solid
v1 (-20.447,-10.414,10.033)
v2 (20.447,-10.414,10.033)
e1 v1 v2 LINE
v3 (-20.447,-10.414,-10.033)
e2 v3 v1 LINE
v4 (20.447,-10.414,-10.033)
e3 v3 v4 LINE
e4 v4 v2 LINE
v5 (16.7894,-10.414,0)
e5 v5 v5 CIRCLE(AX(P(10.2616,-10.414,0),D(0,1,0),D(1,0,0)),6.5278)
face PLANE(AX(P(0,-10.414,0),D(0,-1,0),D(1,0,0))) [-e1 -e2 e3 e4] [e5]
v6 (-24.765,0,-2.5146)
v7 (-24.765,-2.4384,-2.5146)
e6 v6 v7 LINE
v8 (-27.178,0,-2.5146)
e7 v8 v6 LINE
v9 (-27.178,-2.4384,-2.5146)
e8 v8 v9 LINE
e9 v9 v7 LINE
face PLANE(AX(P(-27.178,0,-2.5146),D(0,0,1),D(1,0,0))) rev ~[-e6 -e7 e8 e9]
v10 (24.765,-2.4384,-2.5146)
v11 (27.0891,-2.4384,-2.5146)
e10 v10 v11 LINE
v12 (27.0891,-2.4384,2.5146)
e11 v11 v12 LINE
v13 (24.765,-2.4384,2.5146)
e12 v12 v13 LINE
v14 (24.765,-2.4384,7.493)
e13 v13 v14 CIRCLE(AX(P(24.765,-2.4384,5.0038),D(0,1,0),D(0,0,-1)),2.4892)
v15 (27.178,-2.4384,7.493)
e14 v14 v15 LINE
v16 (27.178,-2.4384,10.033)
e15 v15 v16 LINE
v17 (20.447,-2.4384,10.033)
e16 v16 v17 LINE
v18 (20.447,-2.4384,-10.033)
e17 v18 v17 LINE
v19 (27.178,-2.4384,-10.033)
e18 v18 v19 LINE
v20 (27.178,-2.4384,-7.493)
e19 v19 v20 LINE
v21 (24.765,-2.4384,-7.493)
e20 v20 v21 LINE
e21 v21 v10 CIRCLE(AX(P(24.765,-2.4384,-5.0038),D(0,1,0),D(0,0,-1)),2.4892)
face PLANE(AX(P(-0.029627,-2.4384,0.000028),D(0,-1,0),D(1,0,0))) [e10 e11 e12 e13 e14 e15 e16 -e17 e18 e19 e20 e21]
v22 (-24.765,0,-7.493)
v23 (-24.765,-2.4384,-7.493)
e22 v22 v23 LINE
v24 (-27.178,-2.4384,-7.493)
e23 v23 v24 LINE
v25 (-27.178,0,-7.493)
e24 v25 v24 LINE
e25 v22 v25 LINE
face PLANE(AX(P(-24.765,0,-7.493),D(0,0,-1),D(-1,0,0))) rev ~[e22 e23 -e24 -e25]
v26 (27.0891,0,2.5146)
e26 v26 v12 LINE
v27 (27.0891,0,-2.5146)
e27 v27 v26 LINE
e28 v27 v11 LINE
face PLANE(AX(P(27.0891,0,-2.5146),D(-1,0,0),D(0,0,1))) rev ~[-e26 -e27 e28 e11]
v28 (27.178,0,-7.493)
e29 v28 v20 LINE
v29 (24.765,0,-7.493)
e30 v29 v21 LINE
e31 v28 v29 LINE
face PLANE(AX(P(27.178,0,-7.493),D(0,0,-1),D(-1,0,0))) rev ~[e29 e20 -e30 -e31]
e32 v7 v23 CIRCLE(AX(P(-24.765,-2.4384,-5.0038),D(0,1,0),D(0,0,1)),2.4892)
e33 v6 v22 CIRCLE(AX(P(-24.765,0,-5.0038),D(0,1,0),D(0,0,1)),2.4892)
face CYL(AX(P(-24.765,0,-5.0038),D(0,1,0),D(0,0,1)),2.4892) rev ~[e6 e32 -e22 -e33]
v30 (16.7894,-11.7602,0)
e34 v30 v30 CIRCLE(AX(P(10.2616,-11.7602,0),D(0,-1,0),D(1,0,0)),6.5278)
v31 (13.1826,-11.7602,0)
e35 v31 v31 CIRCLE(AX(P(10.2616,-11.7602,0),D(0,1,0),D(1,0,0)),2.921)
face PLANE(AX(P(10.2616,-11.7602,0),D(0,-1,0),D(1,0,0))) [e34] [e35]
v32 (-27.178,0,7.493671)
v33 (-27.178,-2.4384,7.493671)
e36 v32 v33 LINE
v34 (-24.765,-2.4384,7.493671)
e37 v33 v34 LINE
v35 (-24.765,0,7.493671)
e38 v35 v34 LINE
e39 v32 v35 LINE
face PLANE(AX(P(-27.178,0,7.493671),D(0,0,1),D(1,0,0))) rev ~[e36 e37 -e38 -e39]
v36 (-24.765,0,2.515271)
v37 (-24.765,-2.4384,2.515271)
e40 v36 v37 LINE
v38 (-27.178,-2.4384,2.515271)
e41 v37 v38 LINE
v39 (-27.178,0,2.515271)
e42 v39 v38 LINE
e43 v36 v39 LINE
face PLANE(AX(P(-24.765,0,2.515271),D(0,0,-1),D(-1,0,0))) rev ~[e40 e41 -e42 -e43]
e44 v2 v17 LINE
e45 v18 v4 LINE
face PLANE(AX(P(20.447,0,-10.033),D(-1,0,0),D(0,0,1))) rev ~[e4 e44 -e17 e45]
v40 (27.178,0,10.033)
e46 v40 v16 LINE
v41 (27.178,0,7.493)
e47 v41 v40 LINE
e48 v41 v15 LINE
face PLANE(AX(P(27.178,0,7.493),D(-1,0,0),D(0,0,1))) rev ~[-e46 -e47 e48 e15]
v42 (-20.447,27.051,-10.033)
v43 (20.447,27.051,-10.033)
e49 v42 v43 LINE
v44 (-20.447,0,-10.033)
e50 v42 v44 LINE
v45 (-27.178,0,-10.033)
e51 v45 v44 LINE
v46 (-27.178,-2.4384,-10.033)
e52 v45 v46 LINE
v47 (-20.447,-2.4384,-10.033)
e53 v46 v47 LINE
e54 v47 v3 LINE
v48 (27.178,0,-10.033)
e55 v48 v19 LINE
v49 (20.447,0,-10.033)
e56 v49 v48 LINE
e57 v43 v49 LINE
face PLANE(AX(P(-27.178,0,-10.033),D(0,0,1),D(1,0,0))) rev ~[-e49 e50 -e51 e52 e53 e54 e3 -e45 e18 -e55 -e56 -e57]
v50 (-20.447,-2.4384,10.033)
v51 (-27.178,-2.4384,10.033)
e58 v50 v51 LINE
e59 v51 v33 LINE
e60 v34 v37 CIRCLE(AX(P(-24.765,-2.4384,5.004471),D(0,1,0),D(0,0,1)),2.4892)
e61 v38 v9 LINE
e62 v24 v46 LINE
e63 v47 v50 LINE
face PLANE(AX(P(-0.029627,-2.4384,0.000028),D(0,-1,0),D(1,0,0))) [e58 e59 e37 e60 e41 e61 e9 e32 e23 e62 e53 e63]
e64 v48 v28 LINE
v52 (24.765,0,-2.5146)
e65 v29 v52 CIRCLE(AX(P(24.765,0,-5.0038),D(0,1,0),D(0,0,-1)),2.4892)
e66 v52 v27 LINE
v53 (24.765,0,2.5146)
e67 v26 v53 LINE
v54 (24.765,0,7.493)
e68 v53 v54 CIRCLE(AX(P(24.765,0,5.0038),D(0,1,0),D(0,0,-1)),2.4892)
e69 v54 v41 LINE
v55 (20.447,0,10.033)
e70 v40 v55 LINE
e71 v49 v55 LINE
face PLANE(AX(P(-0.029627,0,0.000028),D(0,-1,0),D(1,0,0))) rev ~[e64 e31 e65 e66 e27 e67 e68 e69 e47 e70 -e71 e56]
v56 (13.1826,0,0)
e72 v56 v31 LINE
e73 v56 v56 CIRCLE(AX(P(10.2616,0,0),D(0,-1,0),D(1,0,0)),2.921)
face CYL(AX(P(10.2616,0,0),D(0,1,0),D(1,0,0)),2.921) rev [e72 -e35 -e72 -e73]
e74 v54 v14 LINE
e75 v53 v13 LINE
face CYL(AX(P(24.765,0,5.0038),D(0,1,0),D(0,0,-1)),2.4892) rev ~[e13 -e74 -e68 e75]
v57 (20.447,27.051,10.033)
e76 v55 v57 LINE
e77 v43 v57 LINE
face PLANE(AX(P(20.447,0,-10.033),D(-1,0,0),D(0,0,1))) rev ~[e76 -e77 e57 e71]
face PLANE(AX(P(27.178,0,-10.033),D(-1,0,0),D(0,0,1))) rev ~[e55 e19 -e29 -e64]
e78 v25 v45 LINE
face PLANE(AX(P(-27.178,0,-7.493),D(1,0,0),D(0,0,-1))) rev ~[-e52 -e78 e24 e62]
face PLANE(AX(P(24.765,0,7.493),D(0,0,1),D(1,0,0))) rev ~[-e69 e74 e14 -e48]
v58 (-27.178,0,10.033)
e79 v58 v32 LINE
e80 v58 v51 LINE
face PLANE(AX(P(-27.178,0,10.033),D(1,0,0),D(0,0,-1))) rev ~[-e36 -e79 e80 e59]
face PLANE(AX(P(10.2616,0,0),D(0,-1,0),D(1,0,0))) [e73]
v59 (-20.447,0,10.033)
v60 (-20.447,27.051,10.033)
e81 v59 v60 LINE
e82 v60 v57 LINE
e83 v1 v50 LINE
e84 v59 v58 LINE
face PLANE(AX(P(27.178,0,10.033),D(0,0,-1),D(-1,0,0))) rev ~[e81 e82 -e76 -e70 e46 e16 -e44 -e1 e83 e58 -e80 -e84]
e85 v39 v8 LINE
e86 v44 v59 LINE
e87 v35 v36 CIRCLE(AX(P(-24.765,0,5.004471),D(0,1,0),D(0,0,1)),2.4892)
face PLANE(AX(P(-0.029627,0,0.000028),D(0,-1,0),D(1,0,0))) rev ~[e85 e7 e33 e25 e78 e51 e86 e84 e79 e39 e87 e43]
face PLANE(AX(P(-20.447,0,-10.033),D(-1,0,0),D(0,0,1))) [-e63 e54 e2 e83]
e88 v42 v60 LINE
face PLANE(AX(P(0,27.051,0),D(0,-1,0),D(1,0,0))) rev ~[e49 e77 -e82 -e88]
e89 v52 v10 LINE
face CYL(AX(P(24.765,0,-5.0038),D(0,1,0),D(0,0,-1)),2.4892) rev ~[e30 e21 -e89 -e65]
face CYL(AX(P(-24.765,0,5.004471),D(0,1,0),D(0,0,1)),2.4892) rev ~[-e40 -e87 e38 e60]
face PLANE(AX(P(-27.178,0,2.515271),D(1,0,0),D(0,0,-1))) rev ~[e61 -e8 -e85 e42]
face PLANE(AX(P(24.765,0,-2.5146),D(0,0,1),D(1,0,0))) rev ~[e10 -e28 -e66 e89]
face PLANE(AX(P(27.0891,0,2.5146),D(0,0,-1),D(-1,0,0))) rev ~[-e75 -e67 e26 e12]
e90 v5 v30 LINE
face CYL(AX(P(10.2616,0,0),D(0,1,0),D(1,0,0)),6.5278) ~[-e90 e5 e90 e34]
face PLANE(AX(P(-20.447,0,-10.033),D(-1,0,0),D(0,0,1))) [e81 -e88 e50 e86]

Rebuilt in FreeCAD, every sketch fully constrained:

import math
import FreeCAD as App
import Part
import Sketcher

V = App.Vector
Q = App.Units.Quantity


def add_polygon(sketch, points):
    """Adds a closed chain of lines whose ends are joined by coincident constraints."""
    first, n = sketch.GeometryCount, len(points)
    for a, b in zip(points, points[1:] + points[:1]):
        sketch.addGeometry(Part.LineSegment(App.Vector(*a, 0), App.Vector(*b, 0)), False)
    for i in range(n):
        sketch.addConstraint(Sketcher.Constraint("Coincident", first + i, 2, first + (i + 1) % n, 1))

doc = App.newDocument("Part")
body = doc.addObject("PartDesign::Body", "Body")

# Sketch on XZ plane
sketch1 = doc.addObject("Sketcher::SketchObject", "Sketch")
body.addObject(sketch1)
sketch1.AttachmentSupport = (doc.XZ_Plane, [""])
sketch1.MapMode = "FlatFace"
add_polygon(sketch1, [(-20, 10), (-20, -10), (20, -10), (20, 10)])  # lines 0-3
sketch1.addConstraint([
    Sketcher.Constraint("Vertical", 0),
    Sketcher.Constraint("Horizontal", 1),
    Sketcher.Constraint("Vertical", 2),
    Sketcher.Constraint("Horizontal", 3),
    Sketcher.Constraint("Symmetric", 0, 2, 2, 2, -1, 1),
    Sketcher.Constraint("DistanceX", 1, 1, 1, 2, Q("1.61 in")),
    Sketcher.Constraint("DistanceY", 0, 2, 0, 1, Q("0.79 in")),
])
pad1 = doc.addObject("PartDesign::Pad", "Pad")
body.addObject(pad1)
pad1.Profile = sketch1
pad1.Type = "TwoLengths"
pad1.Length = Q("1.065 in")
pad1.Length2 = Q("0.41 in")
pad1.Reversed = True

# Sketch on XZ plane
sketch2 = doc.addObject("Sketcher::SketchObject", "Sketch001")
body.addObject(sketch2)
sketch2.AttachmentSupport = (doc.XZ_Plane, [""])
sketch2.MapMode = "FlatFace"
sketch2.addGeometry([
    Part.LineSegment(V(27.2, 7.5, 0), V(27.2, 10, 0)),  # 0
    Part.LineSegment(V(27.2, 10, 0), V(-27.2, 10, 0)),  # 1
    Part.LineSegment(V(-27.2, 10, 0), V(-27.2, 7.5, 0)),  # 2
    Part.LineSegment(V(-27.2, 7.5, 0), V(-24.8, 7.5, 0)),  # 3
    Part.ArcOfCircle(Part.Circle(V(-24.8, 5, 0), V(0, 0, 1), 2.5), math.radians(-90), math.radians(90)),  # 4
    Part.LineSegment(V(-24.8, 2.5, 0), V(-27.2, 2.5, 0)),  # 5
    Part.LineSegment(V(-27.2, 2.5, 0), V(-27.2, -2.5, 0)),  # 6
    Part.LineSegment(V(-27.2, -2.5, 0), V(-24.8, -2.5, 0)),  # 7
    Part.ArcOfCircle(Part.Circle(V(-24.8, -5, 0), V(0, 0, 1), 2.5), math.radians(-90), math.radians(90)),  # 8
    Part.LineSegment(V(-24.8, -7.5, 0), V(-27.2, -7.5, 0)),  # 9
    Part.LineSegment(V(-27.2, -7.5, 0), V(-27.2, -10, 0)),  # 10
    Part.LineSegment(V(-27.2, -10, 0), V(27.2, -10, 0)),  # 11
    Part.LineSegment(V(27.2, -10, 0), V(27.2, -7.5, 0)),  # 12
    Part.LineSegment(V(27.2, -7.5, 0), V(24.8, -7.5, 0)),  # 13
    Part.ArcOfCircle(Part.Circle(V(24.8, -5, 0), V(0, 0, 1), 2.5), math.radians(90), math.radians(270)),  # 14
    Part.LineSegment(V(24.8, -2.5, 0), V(27.1, -2.5, 0)),  # 15
    Part.LineSegment(V(27.1, -2.5, 0), V(27.1, 2.5, 0)),  # 16
    Part.LineSegment(V(27.1, 2.5, 0), V(24.8, 2.5, 0)),  # 17
    Part.ArcOfCircle(Part.Circle(V(24.8, 5, 0), V(0, 0, 1), 2.5), math.radians(90), math.radians(270)),  # 18
    Part.LineSegment(V(24.8, 7.5, 0), V(27.2, 7.5, 0)),  # 19
], False)
sketch2.addConstraint([
    Sketcher.Constraint("Coincident", 0, 2, 1, 1),
    Sketcher.Constraint("Coincident", 1, 2, 2, 1),
    Sketcher.Constraint("Coincident", 2, 2, 3, 1),
    Sketcher.Constraint("Tangent", 3, 2, 4, 2),
    Sketcher.Constraint("Tangent", 4, 1, 5, 1),
    Sketcher.Constraint("Coincident", 5, 2, 6, 1),
    Sketcher.Constraint("Coincident", 6, 2, 7, 1),
    Sketcher.Constraint("Tangent", 7, 2, 8, 2),
    Sketcher.Constraint("Tangent", 8, 1, 9, 1),
    Sketcher.Constraint("Coincident", 9, 2, 10, 1),
    Sketcher.Constraint("Coincident", 10, 2, 11, 1),
    Sketcher.Constraint("Coincident", 11, 2, 12, 1),
    Sketcher.Constraint("Coincident", 12, 2, 13, 1),
    Sketcher.Constraint("Tangent", 13, 2, 14, 2),
    Sketcher.Constraint("Tangent", 14, 1, 15, 1),
    Sketcher.Constraint("Coincident", 15, 2, 16, 1),
    Sketcher.Constraint("Coincident", 16, 2, 17, 1),
    Sketcher.Constraint("Tangent", 17, 2, 18, 2),
    Sketcher.Constraint("Tangent", 18, 1, 19, 1),
    Sketcher.Constraint("Coincident", 19, 2, 0, 1),
    Sketcher.Constraint("Vertical", 0),
    Sketcher.Constraint("Horizontal", 1),
    Sketcher.Constraint("Vertical", 2),
    Sketcher.Constraint("Horizontal", 3),
    Sketcher.Constraint("Horizontal", 5),
    Sketcher.Constraint("Vertical", 6),
    Sketcher.Constraint("Horizontal", 7),
    Sketcher.Constraint("Horizontal", 9),
    Sketcher.Constraint("Vertical", 10),
    Sketcher.Constraint("Horizontal", 11),
    Sketcher.Constraint("Vertical", 12),
    Sketcher.Constraint("Horizontal", 13),
    Sketcher.Constraint("Horizontal", 15),
    Sketcher.Constraint("Vertical", 16),
    Sketcher.Constraint("Horizontal", 17),
    Sketcher.Constraint("Horizontal", 19),
    Sketcher.Constraint("Equal", 4, 8),
    Sketcher.Constraint("Equal", 8, 14),
    Sketcher.Constraint("Equal", 14, 18),
    Sketcher.Constraint("Symmetric", 8, 3, 18, 3, -1, 1),
    Sketcher.Constraint("Symmetric", 0, 2, 10, 2, -1, 1),
    Sketcher.Constraint("Symmetric", 8, 3, 14, 3, -2),
    Sketcher.Constraint("Vertical", 4, 3, 8, 3),
    Sketcher.Constraint("Vertical", 2, 2, 5, 2),
    Sketcher.Constraint("Vertical", 6, 2, 9, 2),
    Sketcher.Constraint("Vertical", 0, 2, 11, 2),
    Sketcher.Constraint("DistanceY", 0, 1, 0, 2, Q("0.1 in")),
    Sketcher.Constraint("Radius", 4, Q("0.098 in")),
    Sketcher.Constraint("DistanceX", 1, 2, 1, 1, Q("2.14 in")),
    Sketcher.Constraint("DistanceX", 3, 1, 3, 2, Q("0.095 in")),
    Sketcher.Constraint("DistanceY", 16, 1, 16, 2, Q("0.198 in")),
    Sketcher.Constraint("DistanceX", 15, 1, 15, 2, Q("0.0915 in")),
    Sketcher.Constraint("DistanceY", 2, 2, 2, 1, 2.539329),
])
pad2 = doc.addObject("PartDesign::Pad", "Pad001")
body.addObject(pad2)
pad2.Profile = sketch2
pad2.Length = Q("0.096 in")

# Sketch on XZ plane
sketch3 = doc.addObject("Sketcher::SketchObject", "Sketch002")
body.addObject(sketch3)
sketch3.AttachmentSupport = (doc.XZ_Plane, [""])
sketch3.MapMode = "FlatFace"
sketch3.addGeometry(Part.Circle(V(10, 0, 0), V(0, 0, 1), 7), False)
sketch3.addConstraint([
    Sketcher.Constraint("PointOnObject", 0, 3, -1),
    Sketcher.Constraint("Diameter", 0, Q("0.514 in")),
    Sketcher.Constraint("DistanceX", -1, 1, 0, 3, Q("0.404 in")),
])
pad3 = doc.addObject("PartDesign::Pad", "Pad002")
body.addObject(pad3)
pad3.Profile = sketch3
pad3.Length = Q("0.463 in")

# Sketch on XZ plane
sketch4 = doc.addObject("Sketcher::SketchObject", "Sketch003")
body.addObject(sketch4)
sketch4.AttachmentSupport = (doc.XZ_Plane, [""])
sketch4.MapMode = "FlatFace"
sketch4.addGeometry(Part.Circle(V(10.3, 0, 0), V(0, 0, 1), 2.9), False)
sketch4.addConstraint([
    Sketcher.Constraint("PointOnObject", 0, 3, -1),
    Sketcher.Constraint("Diameter", 0, Q("0.23 in")),
    Sketcher.Constraint("DistanceX", -1, 1, 0, 3, Q("0.404 in")),
])
pocket1 = doc.addObject("PartDesign::Pocket", "Pocket")
body.addObject(pocket1)
pocket1.Profile = sketch4
pocket1.Length = Q("0.559 in")
pocket1.Reversed = True

doc.recompute()
